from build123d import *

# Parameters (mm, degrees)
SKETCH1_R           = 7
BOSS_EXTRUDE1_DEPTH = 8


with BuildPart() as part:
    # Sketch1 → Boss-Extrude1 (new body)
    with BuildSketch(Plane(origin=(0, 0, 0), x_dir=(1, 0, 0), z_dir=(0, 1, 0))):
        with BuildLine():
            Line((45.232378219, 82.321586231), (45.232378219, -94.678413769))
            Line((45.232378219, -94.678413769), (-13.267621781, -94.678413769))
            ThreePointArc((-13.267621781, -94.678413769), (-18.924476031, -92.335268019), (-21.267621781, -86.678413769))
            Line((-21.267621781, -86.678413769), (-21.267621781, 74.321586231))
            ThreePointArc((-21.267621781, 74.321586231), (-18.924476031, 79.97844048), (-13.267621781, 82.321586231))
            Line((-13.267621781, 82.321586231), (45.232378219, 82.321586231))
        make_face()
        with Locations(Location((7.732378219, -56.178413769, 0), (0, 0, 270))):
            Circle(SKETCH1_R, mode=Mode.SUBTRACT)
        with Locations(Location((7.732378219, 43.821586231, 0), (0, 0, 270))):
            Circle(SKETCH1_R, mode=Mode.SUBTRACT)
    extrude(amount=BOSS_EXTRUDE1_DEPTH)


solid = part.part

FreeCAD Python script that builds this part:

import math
import FreeCAD as App
import Part
import Sketcher
Q = App.Units.Quantity

doc = App.newDocument("Part")
body = doc.addObject("PartDesign::Body", "Body")

sketch1 = doc.addObject("Sketcher::SketchObject", "Sketch")
body.addObject(sketch1)
sketch1.AttachmentSupport = (doc.XZ_Plane, [""])
sketch1.MapMode = "FlatFace"
sketch1.addGeometry(Part.LineSegment(App.Vector(45.232378, 94.678414, 0), App.Vector(45.232378, -82.321586, 0)), False)
sketch1.addGeometry(Part.LineSegment(App.Vector(45.232378, -82.321586, 0), App.Vector(-13.267622, -82.321586, 0)), False)
sketch1.addGeometry(Part.ArcOfCircle(Part.Circle(App.Vector(-13.267622, -74.321586, 0), App.Vector(0, 0, 1), 8), math.radians(180), math.radians(270)), False)
sketch1.addGeometry(Part.LineSegment(App.Vector(-21.267622, -74.321586, 0), App.Vector(-21.267622, 86.678414, 0)), False)
sketch1.addGeometry(Part.ArcOfCircle(Part.Circle(App.Vector(-13.267622, 86.678414, 0), App.Vector(0, 0, 1), 8), math.radians(90), math.radians(180)), False)
sketch1.addGeometry(Part.LineSegment(App.Vector(-13.267622, 94.678414, 0), App.Vector(45.232378, 94.678414, 0)), False)
sketch1.addGeometry(Part.Circle(App.Vector(7.732378, 56.178414, 0), App.Vector(0, 0, 1), 7), False)
sketch1.addGeometry(Part.Circle(App.Vector(7.732378, -43.821586, 0), App.Vector(0, 0, 1), 7), False)
sketch1.addConstraint(Sketcher.Constraint("Coincident", 0, 2, 1, 1))
sketch1.addConstraint(Sketcher.Constraint("Tangent", 1, 2, 2, 2))
sketch1.addConstraint(Sketcher.Constraint("Tangent", 2, 1, 3, 1))
sketch1.addConstraint(Sketcher.Constraint("Tangent", 3, 2, 4, 2))
sketch1.addConstraint(Sketcher.Constraint("Tangent", 4, 1, 5, 1))
sketch1.addConstraint(Sketcher.Constraint("Coincident", 5, 2, 0, 1))
sketch1.addConstraint(Sketcher.Constraint("Vertical", 0))
sketch1.addConstraint(Sketcher.Constraint("Horizontal", 1))
sketch1.addConstraint(Sketcher.Constraint("Vertical", 3))
sketch1.addConstraint(Sketcher.Constraint("Horizontal", 5))
sketch1.addConstraint(Sketcher.Constraint("Equal", 2, 4))
sketch1.addConstraint(Sketcher.Constraint("Equal", 6, 7))
sketch1.addConstraint(Sketcher.Constraint("Vertical", 6, 3, 7, 3))
sketch1.addConstraint(Sketcher.Constraint("Diameter", 6, Q("14 mm")))
sketch1.addConstraint(Sketcher.Constraint("Radius", 2, Q("8 mm")))
sketch1.addConstraint(Sketcher.Constraint("DistanceY", 0, 2, 0, 1, Q("177 mm")))
sketch1.addConstraint(Sketcher.Constraint("DistanceX", 1, 2, 1, 1, Q("58.5 mm")))
sketch1.addConstraint(Sketcher.Constraint("DistanceX", 4, 3, 6, 3, Q("21 mm")))
sketch1.addConstraint(Sketcher.Constraint("DistanceY", 7, 3, 6, 3, Q("100 mm")))
sketch1.addConstraint(Sketcher.Constraint("DistanceY", 6, 3, 4, 3, Q("30.5 mm")))
sketch1.addConstraint(Sketcher.Constraint("DistanceX", 2, 3, -1, 1, Q("13.267622 mm")))
sketch1.addConstraint(Sketcher.Constraint("DistanceY", 2, 3, -1, 1, Q("74.321586 mm")))
pad1 = doc.addObject("PartDesign::Pad", "Pad")
body.addObject(pad1)
pad1.Profile = sketch1
pad1.Length = 8
pad1.Reversed = True

doc.recompute()
